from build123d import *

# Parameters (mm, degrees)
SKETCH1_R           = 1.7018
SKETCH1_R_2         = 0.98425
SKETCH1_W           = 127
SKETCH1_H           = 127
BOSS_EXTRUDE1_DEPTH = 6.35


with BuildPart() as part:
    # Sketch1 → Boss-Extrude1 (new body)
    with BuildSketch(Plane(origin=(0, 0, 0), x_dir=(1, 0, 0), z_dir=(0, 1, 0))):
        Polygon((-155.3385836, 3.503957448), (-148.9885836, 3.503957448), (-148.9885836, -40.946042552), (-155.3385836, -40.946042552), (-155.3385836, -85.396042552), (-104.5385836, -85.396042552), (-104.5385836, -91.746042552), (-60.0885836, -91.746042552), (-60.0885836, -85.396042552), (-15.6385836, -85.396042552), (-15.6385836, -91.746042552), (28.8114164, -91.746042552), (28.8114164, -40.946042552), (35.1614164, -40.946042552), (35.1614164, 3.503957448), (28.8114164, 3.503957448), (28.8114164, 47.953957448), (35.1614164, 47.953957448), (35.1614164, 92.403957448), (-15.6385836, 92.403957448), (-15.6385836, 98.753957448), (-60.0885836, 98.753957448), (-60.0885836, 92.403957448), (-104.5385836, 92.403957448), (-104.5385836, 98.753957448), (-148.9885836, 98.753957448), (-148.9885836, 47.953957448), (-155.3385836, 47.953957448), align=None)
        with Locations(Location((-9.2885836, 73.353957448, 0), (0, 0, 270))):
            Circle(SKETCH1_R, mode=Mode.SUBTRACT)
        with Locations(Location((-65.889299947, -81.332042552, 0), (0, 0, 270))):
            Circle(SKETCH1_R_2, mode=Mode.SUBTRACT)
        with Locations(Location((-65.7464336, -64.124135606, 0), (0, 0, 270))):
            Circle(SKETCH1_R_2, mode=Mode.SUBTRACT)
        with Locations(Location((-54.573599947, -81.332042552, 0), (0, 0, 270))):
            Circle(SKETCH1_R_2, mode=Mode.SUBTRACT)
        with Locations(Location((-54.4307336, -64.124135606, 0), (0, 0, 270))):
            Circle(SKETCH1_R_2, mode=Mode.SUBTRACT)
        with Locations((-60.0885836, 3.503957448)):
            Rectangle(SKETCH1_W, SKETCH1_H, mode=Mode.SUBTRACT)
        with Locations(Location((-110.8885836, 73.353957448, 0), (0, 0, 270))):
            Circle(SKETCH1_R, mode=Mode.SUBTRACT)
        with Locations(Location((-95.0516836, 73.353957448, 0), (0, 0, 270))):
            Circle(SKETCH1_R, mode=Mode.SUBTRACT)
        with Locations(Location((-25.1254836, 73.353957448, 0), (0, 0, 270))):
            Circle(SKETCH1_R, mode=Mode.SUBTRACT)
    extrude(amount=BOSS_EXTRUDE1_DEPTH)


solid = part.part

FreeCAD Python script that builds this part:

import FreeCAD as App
import Part
import Sketcher

V = App.Vector
Q = App.Units.Quantity


def add_polygon(sketch, points):
    """Adds a closed chain of lines whose ends are joined by coincident constraints."""
    first, n = sketch.GeometryCount, len(points)
    for a, b in zip(points, points[1:] + points[:1]):
        sketch.addGeometry(Part.LineSegment(App.Vector(*a, 0), App.Vector(*b, 0)), False)
    for i in range(n):
        sketch.addConstraint(Sketcher.Constraint("Coincident", first + i, 2, first + (i + 1) % n, 1))

doc = App.newDocument("Part")
body = doc.addObject("PartDesign::Body", "Body")

# Sketch on XZ plane
sketch1 = body.newObject("Sketcher::SketchObject", "Sketch")
sketch1.AttachmentSupport = (doc.getObject("XZ_Plane"), [""])
sketch1.MapMode = "FlatFace"
add_polygon(sketch1, [(-155.338584, -3.503957), (-148.988584, -3.503957), (-148.988584, 40.946043), (-155.338584, 40.946043), (-155.338584, 85.396043), (-104.538584, 85.396043), (-104.538584, 91.746043), (-60.088584, 91.746043), (-60.088584, 85.396043), (-15.638584, 85.396043), (-15.638584, 91.746043), (28.811416, 91.746043), (28.811416, 40.946043), (35.161416, 40.946043), (35.161416, -3.503957), (28.811416, -3.503957), (28.811416, -47.953957), (35.161416, -47.953957), (35.161416, -92.403957), (-15.638584, -92.403957), (-15.638584, -98.753957), (-60.088584, -98.753957), (-60.088584, -92.403957), (-104.538584, -92.403957), (-104.538584, -98.753957), (-148.988584, -98.753957), (-148.988584, -47.953957), (-155.338584, -47.953957)])  # lines 0-27
sketch1.addGeometry(Part.Circle(V(-65.8893, 81.332043, 0), V(0, 0, 1), 0.98425), False)  # 28
sketch1.addGeometry(Part.Circle(V(-65.746434, 64.124136, 0), V(0, 0, 1), 0.98425), False)  # 29
sketch1.addGeometry(Part.Circle(V(-54.5736, 81.332043, 0), V(0, 0, 1), 0.98425), False)  # 30
sketch1.addGeometry(Part.Circle(V(-54.430734, 64.124136, 0), V(0, 0, 1), 0.98425), False)  # 31
sketch1.addGeometry(Part.Circle(V(-110.888584, -73.353957, 0), V(0, 0, 1), 1.7018), False)  # 32
sketch1.addGeometry(Part.Circle(V(-95.051684, -73.353957, 0), V(0, 0, 1), 1.7018), False)  # 33
add_polygon(sketch1, [(3.411416, 59.996043), (-123.588584, 59.996043), (-123.588584, -67.003957), (3.411416, -67.003957)])  # lines 34-37
sketch1.addGeometry(Part.Circle(V(-25.125484, -73.353957, 0), V(0, 0, 1), 1.7018), False)  # 38
sketch1.addGeometry(Part.Circle(V(-9.288584, -73.353957, 0), V(0, 0, 1), 1.7018), False)  # 39
sketch1.addConstraint(Sketcher.Constraint("Horizontal", 0))
sketch1.addConstraint(Sketcher.Constraint("Vertical", 1))
sketch1.addConstraint(Sketcher.Constraint("Horizontal", 2))
sketch1.addConstraint(Sketcher.Constraint("Vertical", 3))
sketch1.addConstraint(Sketcher.Constraint("Horizontal", 4))
sketch1.addConstraint(Sketcher.Constraint("Vertical", 5))
sketch1.addConstraint(Sketcher.Constraint("Horizontal", 6))
sketch1.addConstraint(Sketcher.Constraint("Vertical", 7))
sketch1.addConstraint(Sketcher.Constraint("Horizontal", 8))
sketch1.addConstraint(Sketcher.Constraint("Vertical", 9))
sketch1.addConstraint(Sketcher.Constraint("Horizontal", 10))
sketch1.addConstraint(Sketcher.Constraint("Vertical", 11))
sketch1.addConstraint(Sketcher.Constraint("Horizontal", 12))
sketch1.addConstraint(Sketcher.Constraint("Vertical", 13))
sketch1.addConstraint(Sketcher.Constraint("Horizontal", 14))
sketch1.addConstraint(Sketcher.Constraint("Vertical", 15))
sketch1.addConstraint(Sketcher.Constraint("Horizontal", 16))
sketch1.addConstraint(Sketcher.Constraint("Vertical", 17))
sketch1.addConstraint(Sketcher.Constraint("Horizontal", 18))
sketch1.addConstraint(Sketcher.Constraint("Vertical", 19))
sketch1.addConstraint(Sketcher.Constraint("Horizontal", 20))
sketch1.addConstraint(Sketcher.Constraint("Vertical", 21))
sketch1.addConstraint(Sketcher.Constraint("Horizontal", 22))
sketch1.addConstraint(Sketcher.Constraint("Vertical", 23))
sketch1.addConstraint(Sketcher.Constraint("Horizontal", 24))
sketch1.addConstraint(Sketcher.Constraint("Vertical", 25))
sketch1.addConstraint(Sketcher.Constraint("Horizontal", 26))
sketch1.addConstraint(Sketcher.Constraint("Vertical", 27))
sketch1.addConstraint(Sketcher.Constraint("Horizontal", 34))
sketch1.addConstraint(Sketcher.Constraint("Vertical", 35))
sketch1.addConstraint(Sketcher.Constraint("Horizontal", 36))
sketch1.addConstraint(Sketcher.Constraint("Vertical", 37))
sketch1.addConstraint(Sketcher.Constraint("Equal", 28, 29))
sketch1.addConstraint(Sketcher.Constraint("Equal", 29, 30))
sketch1.addConstraint(Sketcher.Constraint("Equal", 30, 31))
sketch1.addConstraint(Sketcher.Constraint("Equal", 32, 33))
sketch1.addConstraint(Sketcher.Constraint("Equal", 33, 38))
sketch1.addConstraint(Sketcher.Constraint("Equal", 38, 39))
sketch1.addConstraint(Sketcher.Constraint("Horizontal", 28, 3, 30, 3))
sketch1.addConstraint(Sketcher.Constraint("Horizontal", 29, 3, 31, 3))
sketch1.addConstraint(Sketcher.Constraint("Horizontal", 32, 3, 33, 3))
sketch1.addConstraint(Sketcher.Constraint("Horizontal", 33, 3, 38, 3))
sketch1.addConstraint(Sketcher.Constraint("Horizontal", 38, 3, 39, 3))
sketch1.addConstraint(Sketcher.Constraint("Horizontal", 4, 2, 7, 2))
sketch1.addConstraint(Sketcher.Constraint("Horizontal", 6, 2, 9, 2))
sketch1.addConstraint(Sketcher.Constraint("Horizontal", 2, 2, 11, 2))
sketch1.addConstraint(Sketcher.Constraint("Horizontal", 0, 2, 13, 2))
sketch1.addConstraint(Sketcher.Constraint("Horizontal", 18, 2, 21, 2))
sketch1.addConstraint(Sketcher.Constraint("Horizontal", 20, 2, 23, 2))
sketch1.addConstraint(Sketcher.Constraint("Horizontal", 16, 2, 25, 2))
sketch1.addConstraint(Sketcher.Constraint("Vertical", 11, 2, 14, 2))
sketch1.addConstraint(Sketcher.Constraint("Vertical", 13, 2, 16, 2))
sketch1.addConstraint(Sketcher.Constraint("Vertical", 9, 2, 18, 2))
sketch1.addConstraint(Sketcher.Constraint("Vertical", 7, 2, 20, 2))
sketch1.addConstraint(Sketcher.Constraint("Vertical", 5, 2, 22, 2))
sketch1.addConstraint(Sketcher.Constraint("Vertical", 1, 2, 24, 2))
sketch1.addConstraint(Sketcher.Constraint("Vertical", 3, 2, 26, 2))
sketch1.addConstraint(Sketcher.Constraint("Equal", 6, 8))
sketch1.addConstraint(Sketcher.Constraint("Equal", 8, 10))
sketch1.addConstraint(Sketcher.Constraint("Equal", 2, 12))
sketch1.addConstraint(Sketcher.Constraint("Equal", 4, 18))
sketch1.addConstraint(Sketcher.Constraint("Equal", 24, 1))
sketch1.addConstraint(Sketcher.Constraint("Equal", 1, 3))
sketch1.addConstraint(Sketcher.Constraint("Equal", 26, 5))
sketch1.addConstraint(Sketcher.Constraint("Equal", 13, 15))
sketch1.addConstraint(Sketcher.Constraint("Equal", 15, 17))
sketch1.addConstraint(Sketcher.Constraint("Equal", 9, 19))
sketch1.addConstraint(Sketcher.Constraint("Equal", 36, 35))
sketch1.addConstraint(Sketcher.Constraint("DistanceX", 4, 1, 4, 2, Q("2 in")))
sketch1.addConstraint(Sketcher.Constraint("DistanceX", 34, 2, 34, 1, Q("5 in")))
sketch1.addConstraint(Sketcher.Constraint("Diameter", 32, Q("0.134 in")))
sketch1.addConstraint(Sketcher.Constraint("DistanceX", 32, 3, 39, 3, Q("4 in")))
sketch1.addConstraint(Sketcher.Constraint("DistanceY", 39, 3, 15, 2, Q("1 in")))
sketch1.addConstraint(Sketcher.Constraint("DistanceX", 20, 2, 39, 3, Q("2 in")))
sketch1.addConstraint(Sketcher.Constraint("DistanceX", 1, 2, 34, 2, Q("1 in")))
sketch1.addConstraint(Sketcher.Constraint("DistanceY", 34, 2, 4, 2, Q("1 in")))
sketch1.addConstraint(Sketcher.Constraint("DistanceY", 22, 2, 35, 2, Q("1 in")))
sketch1.addConstraint(Sketcher.Constraint("Diameter", 28, Q("0.0775 in")))
sketch1.addConstraint(Sketcher.Constraint("DistanceY", 32, 3, 28, 3, Q("6.09 in")))
sketch1.addConstraint(Sketcher.Constraint("DistanceX", 33, 3, 38, 3, Q("2.753 in")))
sketch1.addConstraint(Sketcher.Constraint("DistanceX", 28, 3, 30, 3, Q("0.4455 in")))
sketch1.addConstraint(Sketcher.Constraint("DistanceX", 29, 3, 31, 3, Q("0.4455 in")))
sketch1.addConstraint(Sketcher.Constraint("DistanceX", 32, 3, 33, 3, Q("0.6235 in")))
sketch1.addConstraint(Sketcher.Constraint("DistanceX", 28, 3, -1, 1, 65.8893))
sketch1.addConstraint(Sketcher.Constraint("DistanceX", 32, 3, 29, 3, 45.14215))
sketch1.addConstraint(Sketcher.Constraint("DistanceY", -1, 1, 28, 3, 81.332043))
sketch1.addConstraint(Sketcher.Constraint("DistanceX", 29, 3, -1, 1, 65.746434))
sketch1.addConstraint(Sketcher.Constraint("DistanceY", -1, 1, 29, 3, 64.124136))
pad1 = body.newObject("PartDesign::Pad", "Pad")
pad1.Profile = sketch1
pad1.Length = Q("0.25 in")
pad1.Reversed = True

doc.recompute()
